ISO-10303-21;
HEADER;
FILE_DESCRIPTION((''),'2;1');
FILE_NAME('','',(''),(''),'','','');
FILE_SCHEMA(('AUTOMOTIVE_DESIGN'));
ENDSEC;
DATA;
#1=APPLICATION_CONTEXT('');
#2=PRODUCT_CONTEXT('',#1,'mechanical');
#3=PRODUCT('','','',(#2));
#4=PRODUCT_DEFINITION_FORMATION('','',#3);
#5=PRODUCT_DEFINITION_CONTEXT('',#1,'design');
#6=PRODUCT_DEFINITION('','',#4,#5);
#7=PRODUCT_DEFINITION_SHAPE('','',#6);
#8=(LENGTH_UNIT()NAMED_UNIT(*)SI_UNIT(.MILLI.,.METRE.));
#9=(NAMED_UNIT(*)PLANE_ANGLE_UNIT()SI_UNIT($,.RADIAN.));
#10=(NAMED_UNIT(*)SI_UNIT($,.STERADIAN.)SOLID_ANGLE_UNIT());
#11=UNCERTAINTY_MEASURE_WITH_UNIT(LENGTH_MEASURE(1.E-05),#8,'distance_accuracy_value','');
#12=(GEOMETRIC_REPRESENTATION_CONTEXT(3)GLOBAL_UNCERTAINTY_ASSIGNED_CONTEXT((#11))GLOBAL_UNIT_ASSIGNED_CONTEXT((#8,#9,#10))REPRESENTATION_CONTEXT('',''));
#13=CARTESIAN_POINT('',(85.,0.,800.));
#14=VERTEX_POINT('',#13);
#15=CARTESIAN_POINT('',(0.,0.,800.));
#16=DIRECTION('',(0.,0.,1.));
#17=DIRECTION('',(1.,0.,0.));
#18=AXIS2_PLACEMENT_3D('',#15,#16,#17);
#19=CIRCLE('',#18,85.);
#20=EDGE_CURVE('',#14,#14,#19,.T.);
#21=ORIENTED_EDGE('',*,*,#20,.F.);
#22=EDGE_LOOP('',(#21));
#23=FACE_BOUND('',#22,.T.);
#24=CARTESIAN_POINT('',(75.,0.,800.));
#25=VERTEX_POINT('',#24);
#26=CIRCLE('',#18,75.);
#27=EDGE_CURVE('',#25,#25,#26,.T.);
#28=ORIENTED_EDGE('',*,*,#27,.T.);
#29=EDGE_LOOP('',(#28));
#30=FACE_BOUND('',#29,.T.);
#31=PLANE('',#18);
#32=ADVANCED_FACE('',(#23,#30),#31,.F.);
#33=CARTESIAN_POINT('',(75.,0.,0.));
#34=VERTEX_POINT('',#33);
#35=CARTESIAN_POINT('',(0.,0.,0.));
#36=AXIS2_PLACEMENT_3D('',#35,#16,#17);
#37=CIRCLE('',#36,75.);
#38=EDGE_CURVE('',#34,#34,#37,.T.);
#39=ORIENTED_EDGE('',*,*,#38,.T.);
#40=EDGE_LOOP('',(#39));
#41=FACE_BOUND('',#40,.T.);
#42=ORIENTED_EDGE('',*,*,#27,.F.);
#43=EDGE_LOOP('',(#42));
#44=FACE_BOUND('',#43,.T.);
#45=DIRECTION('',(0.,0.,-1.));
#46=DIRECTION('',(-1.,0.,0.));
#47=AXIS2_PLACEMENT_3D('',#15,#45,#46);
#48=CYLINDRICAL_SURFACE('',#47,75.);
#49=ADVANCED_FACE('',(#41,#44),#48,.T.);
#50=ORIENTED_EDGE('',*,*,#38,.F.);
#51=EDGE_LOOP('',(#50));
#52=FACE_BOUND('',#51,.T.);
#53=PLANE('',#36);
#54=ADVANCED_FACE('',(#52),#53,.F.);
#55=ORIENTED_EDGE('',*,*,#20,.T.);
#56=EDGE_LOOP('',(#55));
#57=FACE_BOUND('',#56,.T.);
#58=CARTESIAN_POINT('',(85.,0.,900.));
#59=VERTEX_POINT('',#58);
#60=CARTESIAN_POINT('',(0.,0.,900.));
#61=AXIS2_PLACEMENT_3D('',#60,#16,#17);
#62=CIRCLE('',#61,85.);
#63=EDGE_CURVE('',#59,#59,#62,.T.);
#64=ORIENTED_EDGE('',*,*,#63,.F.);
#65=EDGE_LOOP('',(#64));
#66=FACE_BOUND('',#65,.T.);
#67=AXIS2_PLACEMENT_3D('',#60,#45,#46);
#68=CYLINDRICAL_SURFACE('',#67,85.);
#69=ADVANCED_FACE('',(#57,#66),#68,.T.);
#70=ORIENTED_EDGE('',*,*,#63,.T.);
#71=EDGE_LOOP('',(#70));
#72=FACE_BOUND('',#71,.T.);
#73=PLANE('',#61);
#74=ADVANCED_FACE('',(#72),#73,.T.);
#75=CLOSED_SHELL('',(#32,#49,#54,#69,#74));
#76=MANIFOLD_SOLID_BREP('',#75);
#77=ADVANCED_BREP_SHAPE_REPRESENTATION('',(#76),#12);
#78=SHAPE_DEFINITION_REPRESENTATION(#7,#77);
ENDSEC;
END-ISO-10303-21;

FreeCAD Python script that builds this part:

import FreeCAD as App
import Part
import Sketcher

V = App.Vector

doc = App.newDocument("Part")
params = doc.addObject("Spreadsheet::Sheet", "Params")
for row, (alias, value) in enumerate([
    ("sketch1_diameter", "150 mm"),
    ("pad1_length", "800 mm"),
    ("sketch2_diameter", "170 mm"),
    ("pad2_length", "100 mm"),
], start=1):
    params.set(f"A{row}", alias)
    params.set(f"B{row}", "=" + value)
    params.setAlias(f"B{row}", alias)

body = doc.addObject("PartDesign::Body", "Body")

sketch1 = doc.addObject("Sketcher::SketchObject", "Sketch")
body.addObject(sketch1)
sketch1.AttachmentSupport = (doc.XY_Plane, [""])
sketch1.MapMode = "FlatFace"
sketch1.addGeometry(Part.Circle(V(0, 0, 0), V(0, 0, 1), 75), False)
sketch1.addConstraint([
    Sketcher.Constraint("Coincident", 0, 3, -1, 1),
    Sketcher.Constraint("Diameter", 0, 150.0),
])
sketch1.setExpression("Constraints[1]", "Params.sketch1_diameter")
pad1 = doc.addObject("PartDesign::Pad", "Pad")
body.addObject(pad1)
pad1.Profile = sketch1
pad1.setExpression("Length", "Params.pad1_length")

sketch2 = doc.addObject("Sketcher::SketchObject", "Sketch001")
body.addObject(sketch2)
sketch2.AttachmentSupport = (doc.XY_Plane, [""])
sketch2.MapMode = "FlatFace"
sketch2.AttachmentOffset = App.Placement(V(0, 0, 800), App.Rotation())
sketch2.addGeometry(Part.Circle(V(0, 0, 0), V(0, 0, 1), 85), False)
sketch2.addConstraint([
    Sketcher.Constraint("Coincident", 0, 3, -1, 1),
    Sketcher.Constraint("Diameter", 0, 170.0),
])
sketch2.setExpression("Constraints[1]", "Params.sketch2_diameter")
pad2 = doc.addObject("PartDesign::Pad", "Pad001")
body.addObject(pad2)
pad2.Profile = sketch2
pad2.setExpression("Length", "Params.pad2_length")

doc.recompute()
